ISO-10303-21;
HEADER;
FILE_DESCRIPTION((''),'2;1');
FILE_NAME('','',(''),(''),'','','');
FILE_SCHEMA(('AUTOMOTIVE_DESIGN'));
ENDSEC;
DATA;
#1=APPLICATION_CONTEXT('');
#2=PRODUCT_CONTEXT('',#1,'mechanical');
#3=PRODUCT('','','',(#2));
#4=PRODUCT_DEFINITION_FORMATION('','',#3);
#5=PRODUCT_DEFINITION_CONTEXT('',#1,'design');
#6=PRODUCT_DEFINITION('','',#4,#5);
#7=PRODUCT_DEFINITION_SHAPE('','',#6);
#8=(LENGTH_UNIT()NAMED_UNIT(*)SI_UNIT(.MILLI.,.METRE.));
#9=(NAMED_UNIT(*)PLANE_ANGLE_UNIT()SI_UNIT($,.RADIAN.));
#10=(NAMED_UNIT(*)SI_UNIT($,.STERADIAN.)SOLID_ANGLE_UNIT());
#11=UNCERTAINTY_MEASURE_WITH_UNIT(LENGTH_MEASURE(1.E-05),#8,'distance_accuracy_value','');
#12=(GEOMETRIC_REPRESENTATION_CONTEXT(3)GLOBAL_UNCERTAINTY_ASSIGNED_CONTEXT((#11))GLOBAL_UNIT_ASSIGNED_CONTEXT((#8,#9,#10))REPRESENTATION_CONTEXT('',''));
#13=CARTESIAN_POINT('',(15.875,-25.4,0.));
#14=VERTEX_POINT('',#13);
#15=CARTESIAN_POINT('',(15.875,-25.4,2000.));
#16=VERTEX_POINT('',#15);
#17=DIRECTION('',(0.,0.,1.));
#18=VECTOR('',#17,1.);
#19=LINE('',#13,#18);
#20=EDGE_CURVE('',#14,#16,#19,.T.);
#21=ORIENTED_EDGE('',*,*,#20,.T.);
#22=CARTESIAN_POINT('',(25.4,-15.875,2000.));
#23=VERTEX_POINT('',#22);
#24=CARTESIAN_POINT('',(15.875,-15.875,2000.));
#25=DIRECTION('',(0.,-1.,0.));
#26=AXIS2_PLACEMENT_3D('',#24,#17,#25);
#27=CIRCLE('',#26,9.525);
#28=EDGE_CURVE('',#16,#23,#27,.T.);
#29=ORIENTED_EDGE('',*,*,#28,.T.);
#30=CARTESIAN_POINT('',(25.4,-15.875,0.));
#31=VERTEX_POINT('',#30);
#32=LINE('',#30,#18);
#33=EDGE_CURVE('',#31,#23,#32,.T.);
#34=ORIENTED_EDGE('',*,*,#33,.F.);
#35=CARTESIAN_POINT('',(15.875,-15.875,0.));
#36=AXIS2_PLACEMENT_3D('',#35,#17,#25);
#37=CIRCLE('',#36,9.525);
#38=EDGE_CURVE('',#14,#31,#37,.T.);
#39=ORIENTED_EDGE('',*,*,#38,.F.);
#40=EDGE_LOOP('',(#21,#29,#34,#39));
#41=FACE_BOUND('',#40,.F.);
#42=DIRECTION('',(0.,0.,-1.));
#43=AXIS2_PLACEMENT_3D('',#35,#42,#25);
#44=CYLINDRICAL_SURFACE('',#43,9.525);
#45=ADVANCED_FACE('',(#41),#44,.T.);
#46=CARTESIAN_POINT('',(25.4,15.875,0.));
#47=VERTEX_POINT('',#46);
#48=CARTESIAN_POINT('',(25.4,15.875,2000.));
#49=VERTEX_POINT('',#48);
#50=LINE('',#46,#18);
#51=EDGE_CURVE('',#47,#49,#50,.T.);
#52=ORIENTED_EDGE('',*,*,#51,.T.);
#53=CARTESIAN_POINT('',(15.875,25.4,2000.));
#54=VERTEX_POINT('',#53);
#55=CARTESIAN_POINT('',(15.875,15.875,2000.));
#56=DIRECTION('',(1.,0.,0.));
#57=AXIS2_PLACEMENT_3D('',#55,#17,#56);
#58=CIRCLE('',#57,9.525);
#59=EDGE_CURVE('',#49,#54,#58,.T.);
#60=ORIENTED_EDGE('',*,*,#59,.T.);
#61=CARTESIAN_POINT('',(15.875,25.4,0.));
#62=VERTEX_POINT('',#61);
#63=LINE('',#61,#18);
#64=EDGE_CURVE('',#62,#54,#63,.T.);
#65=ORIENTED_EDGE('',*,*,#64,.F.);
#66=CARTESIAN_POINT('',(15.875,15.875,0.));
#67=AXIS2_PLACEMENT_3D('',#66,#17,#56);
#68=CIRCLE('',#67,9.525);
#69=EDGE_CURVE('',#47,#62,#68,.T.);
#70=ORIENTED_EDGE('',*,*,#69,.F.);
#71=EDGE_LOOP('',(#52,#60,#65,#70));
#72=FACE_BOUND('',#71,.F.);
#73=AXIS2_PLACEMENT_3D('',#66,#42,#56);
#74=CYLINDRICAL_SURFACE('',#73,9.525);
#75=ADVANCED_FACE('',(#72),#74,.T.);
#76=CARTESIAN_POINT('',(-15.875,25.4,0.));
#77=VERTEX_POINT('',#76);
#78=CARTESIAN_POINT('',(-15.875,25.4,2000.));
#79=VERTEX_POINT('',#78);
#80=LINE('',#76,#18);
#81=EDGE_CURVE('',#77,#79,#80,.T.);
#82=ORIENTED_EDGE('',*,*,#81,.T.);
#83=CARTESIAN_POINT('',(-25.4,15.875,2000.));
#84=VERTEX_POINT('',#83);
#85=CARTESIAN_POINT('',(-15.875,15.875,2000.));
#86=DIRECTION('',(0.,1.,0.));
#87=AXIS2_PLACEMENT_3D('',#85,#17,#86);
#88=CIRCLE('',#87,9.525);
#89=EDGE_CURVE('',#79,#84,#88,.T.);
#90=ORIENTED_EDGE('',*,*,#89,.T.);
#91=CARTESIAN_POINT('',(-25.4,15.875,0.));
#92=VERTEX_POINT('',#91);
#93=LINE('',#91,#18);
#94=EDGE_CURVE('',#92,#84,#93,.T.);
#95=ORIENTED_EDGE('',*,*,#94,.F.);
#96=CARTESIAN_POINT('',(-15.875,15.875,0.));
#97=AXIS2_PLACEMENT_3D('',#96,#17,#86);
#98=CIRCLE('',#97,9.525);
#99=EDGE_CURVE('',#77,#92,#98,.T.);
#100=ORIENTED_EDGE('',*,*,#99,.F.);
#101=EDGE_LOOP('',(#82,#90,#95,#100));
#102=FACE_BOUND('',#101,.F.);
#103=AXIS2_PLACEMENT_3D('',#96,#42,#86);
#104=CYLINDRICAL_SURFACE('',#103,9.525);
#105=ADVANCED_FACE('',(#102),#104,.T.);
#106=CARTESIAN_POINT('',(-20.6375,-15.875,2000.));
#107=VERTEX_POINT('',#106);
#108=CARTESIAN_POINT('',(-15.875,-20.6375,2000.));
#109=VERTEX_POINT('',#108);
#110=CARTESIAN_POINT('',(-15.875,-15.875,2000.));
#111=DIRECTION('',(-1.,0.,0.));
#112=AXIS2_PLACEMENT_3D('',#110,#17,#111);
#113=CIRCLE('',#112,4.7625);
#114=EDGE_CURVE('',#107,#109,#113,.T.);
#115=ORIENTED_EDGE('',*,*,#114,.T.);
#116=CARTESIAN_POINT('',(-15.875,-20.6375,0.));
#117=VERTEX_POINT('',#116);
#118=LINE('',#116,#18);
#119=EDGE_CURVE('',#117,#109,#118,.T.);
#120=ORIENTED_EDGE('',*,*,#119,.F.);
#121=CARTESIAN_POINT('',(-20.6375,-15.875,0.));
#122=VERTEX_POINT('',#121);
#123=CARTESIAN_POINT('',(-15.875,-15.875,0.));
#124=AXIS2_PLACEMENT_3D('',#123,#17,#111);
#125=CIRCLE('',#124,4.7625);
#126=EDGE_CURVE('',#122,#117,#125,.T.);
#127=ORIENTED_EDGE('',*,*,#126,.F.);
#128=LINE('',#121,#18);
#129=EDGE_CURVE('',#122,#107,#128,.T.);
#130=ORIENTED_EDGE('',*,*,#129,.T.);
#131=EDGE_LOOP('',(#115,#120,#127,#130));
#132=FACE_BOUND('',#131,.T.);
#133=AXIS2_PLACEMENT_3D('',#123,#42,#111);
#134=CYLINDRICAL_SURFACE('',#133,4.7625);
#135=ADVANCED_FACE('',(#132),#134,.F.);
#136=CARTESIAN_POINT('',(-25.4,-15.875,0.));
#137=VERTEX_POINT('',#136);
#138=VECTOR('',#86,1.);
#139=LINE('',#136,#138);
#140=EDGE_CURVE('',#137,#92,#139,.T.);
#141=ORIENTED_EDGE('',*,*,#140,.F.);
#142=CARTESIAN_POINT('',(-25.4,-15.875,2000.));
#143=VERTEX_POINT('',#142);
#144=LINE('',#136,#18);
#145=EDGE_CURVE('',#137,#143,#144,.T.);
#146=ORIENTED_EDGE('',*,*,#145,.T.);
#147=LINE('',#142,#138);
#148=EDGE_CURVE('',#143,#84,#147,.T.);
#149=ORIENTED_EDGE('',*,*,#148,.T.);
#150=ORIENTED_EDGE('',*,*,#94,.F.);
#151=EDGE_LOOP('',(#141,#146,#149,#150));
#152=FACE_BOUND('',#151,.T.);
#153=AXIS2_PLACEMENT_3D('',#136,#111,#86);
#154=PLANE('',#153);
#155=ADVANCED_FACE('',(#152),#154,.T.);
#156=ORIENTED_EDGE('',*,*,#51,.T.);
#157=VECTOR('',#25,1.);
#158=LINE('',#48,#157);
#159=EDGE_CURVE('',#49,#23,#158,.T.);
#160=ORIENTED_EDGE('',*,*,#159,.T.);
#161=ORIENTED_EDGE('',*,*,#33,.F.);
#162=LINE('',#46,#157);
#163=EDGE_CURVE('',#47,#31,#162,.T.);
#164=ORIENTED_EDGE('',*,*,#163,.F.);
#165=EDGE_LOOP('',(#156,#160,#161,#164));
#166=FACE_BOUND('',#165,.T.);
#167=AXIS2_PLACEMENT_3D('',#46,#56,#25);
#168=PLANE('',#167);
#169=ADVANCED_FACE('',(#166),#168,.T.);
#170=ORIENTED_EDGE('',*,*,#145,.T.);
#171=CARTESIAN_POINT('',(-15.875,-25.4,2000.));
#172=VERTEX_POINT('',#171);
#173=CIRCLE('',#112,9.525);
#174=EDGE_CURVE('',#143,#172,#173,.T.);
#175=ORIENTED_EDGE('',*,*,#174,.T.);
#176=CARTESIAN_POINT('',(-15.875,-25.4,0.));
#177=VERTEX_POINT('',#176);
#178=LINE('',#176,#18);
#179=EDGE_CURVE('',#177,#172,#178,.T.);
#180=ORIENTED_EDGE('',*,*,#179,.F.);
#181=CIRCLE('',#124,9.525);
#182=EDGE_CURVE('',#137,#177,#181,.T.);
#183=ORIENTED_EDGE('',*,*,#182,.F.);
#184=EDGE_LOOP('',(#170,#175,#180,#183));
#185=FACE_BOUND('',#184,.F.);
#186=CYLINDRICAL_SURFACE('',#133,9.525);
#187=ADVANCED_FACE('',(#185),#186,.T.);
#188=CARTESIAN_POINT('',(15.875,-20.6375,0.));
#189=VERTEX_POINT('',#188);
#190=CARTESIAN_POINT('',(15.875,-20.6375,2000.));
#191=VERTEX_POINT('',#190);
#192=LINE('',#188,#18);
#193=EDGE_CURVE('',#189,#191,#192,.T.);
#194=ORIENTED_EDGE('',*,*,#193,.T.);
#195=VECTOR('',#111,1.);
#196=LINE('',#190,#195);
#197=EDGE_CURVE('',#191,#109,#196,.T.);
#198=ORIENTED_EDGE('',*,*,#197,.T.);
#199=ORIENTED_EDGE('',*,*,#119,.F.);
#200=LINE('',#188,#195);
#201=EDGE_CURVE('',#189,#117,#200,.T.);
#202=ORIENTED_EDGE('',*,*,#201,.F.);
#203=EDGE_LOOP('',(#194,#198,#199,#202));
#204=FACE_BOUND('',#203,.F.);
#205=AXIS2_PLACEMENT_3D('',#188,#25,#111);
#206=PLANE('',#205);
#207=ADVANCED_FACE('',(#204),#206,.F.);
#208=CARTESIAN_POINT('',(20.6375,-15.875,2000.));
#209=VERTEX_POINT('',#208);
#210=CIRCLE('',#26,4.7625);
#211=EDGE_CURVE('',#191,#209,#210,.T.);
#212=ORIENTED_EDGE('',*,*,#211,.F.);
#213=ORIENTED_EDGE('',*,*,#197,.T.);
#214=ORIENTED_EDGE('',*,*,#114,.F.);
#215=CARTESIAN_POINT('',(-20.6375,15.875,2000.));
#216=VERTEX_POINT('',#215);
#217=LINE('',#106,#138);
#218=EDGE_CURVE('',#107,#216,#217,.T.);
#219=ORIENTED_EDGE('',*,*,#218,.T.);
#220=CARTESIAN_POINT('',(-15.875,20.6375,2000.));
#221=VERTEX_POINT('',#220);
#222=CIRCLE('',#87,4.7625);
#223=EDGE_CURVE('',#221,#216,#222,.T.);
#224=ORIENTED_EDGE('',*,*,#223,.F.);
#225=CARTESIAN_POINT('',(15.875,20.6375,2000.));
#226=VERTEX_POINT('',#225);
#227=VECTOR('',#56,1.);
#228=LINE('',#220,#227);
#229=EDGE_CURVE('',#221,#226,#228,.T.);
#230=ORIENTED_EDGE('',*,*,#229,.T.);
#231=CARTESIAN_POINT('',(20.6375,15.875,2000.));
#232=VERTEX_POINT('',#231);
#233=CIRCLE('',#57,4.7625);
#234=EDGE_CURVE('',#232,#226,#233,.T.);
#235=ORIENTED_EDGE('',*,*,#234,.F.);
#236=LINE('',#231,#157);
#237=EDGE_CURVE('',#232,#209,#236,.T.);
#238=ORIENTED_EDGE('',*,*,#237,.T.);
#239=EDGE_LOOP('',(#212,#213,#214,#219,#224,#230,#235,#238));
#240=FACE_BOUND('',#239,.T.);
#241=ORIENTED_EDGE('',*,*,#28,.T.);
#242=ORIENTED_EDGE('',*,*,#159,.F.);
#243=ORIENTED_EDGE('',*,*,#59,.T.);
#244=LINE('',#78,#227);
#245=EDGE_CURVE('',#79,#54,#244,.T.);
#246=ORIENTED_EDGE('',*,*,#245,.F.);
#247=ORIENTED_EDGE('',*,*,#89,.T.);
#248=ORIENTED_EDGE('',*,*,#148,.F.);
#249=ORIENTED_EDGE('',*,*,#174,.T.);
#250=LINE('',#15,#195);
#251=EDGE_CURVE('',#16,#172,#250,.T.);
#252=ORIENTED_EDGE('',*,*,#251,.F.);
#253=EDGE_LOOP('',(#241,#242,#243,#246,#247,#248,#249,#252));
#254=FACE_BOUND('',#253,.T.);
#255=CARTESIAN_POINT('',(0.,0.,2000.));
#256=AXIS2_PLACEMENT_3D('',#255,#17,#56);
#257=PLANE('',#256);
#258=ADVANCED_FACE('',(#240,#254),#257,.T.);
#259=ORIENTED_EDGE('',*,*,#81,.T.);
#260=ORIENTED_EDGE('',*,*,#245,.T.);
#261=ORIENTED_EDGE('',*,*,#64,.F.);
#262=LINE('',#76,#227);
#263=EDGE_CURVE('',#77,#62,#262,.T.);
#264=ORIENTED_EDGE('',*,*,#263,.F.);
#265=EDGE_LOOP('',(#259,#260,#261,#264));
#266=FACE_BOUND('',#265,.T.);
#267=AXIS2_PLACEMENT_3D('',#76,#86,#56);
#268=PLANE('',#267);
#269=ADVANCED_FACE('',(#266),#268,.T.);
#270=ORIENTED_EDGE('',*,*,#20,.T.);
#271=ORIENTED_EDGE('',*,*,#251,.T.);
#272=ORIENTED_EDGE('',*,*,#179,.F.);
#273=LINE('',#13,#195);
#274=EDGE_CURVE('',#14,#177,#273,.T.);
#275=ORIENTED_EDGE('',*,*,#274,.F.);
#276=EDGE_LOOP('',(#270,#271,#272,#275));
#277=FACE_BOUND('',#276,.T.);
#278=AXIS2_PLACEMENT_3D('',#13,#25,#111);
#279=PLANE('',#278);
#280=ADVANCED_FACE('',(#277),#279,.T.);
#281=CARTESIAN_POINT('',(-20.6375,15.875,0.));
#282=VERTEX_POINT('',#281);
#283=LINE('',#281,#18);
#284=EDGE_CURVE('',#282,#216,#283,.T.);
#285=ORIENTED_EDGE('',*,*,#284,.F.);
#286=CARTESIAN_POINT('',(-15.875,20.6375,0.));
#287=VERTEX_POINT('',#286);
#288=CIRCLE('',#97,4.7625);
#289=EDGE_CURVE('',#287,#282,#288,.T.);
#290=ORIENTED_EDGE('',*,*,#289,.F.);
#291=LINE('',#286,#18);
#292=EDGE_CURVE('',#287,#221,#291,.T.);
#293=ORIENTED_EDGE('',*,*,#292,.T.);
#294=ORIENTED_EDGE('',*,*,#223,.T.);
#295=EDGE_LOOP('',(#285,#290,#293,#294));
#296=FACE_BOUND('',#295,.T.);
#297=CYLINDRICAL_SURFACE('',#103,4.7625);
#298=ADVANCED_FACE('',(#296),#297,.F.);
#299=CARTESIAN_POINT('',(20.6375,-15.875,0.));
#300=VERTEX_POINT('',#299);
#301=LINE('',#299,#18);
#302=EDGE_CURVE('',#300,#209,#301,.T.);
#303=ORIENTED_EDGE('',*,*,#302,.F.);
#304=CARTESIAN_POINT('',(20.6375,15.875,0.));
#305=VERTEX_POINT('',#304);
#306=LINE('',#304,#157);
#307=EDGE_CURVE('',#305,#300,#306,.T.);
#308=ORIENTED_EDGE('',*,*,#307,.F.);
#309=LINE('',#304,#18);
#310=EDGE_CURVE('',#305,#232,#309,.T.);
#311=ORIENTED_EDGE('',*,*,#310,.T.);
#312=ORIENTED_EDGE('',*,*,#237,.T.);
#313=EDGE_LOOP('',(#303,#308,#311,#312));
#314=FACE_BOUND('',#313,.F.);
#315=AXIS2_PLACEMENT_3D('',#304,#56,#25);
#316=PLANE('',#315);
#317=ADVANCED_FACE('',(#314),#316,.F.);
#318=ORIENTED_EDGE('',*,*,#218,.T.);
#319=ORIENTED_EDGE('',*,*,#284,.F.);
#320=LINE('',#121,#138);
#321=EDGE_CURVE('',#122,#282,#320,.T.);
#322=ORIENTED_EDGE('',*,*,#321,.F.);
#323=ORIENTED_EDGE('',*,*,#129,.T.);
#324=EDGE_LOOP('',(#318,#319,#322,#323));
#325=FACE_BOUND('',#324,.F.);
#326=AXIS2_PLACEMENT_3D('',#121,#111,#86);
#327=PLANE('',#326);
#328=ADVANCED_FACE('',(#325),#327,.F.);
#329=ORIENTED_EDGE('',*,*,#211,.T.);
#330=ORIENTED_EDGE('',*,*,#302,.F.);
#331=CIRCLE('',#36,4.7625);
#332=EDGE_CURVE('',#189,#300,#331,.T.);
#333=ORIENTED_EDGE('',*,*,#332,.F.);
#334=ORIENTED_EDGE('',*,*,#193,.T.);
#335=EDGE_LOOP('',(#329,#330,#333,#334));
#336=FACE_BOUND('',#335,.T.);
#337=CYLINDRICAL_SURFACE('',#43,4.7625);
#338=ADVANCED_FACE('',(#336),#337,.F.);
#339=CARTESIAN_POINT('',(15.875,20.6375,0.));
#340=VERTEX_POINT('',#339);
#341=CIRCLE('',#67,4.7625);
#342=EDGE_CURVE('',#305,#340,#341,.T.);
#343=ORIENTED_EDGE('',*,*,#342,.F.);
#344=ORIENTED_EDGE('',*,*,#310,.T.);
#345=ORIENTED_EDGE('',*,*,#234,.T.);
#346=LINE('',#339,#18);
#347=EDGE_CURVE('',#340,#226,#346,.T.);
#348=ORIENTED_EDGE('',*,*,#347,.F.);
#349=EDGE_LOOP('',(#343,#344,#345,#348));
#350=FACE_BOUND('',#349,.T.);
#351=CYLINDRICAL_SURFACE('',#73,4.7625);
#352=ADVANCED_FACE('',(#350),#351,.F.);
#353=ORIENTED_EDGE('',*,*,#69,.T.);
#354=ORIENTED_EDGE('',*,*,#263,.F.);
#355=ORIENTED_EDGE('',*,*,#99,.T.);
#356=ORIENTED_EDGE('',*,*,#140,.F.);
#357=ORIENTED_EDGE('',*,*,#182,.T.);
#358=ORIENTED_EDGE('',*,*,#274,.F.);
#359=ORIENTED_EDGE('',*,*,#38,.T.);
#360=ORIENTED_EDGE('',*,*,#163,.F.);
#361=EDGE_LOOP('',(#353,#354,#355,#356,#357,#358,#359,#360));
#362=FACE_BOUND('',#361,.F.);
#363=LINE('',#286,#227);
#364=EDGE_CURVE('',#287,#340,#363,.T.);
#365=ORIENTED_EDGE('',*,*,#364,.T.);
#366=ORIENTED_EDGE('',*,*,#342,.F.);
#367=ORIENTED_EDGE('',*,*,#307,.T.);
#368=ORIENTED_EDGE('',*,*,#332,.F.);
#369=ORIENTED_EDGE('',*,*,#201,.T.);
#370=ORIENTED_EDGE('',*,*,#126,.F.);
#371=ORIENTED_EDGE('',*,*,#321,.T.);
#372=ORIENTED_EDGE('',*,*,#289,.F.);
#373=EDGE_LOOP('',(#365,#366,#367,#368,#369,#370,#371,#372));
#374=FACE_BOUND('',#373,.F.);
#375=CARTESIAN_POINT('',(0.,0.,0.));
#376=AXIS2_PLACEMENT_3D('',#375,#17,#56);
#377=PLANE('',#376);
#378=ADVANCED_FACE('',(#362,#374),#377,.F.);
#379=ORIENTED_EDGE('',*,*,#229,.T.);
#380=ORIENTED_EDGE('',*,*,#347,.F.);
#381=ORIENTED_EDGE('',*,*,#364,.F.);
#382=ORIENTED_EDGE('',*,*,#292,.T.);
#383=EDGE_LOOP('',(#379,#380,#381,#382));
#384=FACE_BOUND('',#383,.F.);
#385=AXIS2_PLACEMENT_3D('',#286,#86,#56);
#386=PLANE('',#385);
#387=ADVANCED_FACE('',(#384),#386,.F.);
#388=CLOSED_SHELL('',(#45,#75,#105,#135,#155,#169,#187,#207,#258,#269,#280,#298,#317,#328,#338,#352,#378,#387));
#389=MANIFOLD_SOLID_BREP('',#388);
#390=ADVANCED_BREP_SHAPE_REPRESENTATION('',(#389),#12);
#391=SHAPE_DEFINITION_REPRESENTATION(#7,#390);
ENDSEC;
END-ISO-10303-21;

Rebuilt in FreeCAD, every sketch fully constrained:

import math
import FreeCAD as App
import Part
import Sketcher
from FreeCAD import Vector
Q = App.Units.Quantity

doc = App.newDocument("Part")
body = doc.addObject("PartDesign::Body", "Body")

sketch1 = body.newObject("Sketcher::SketchObject", "Sketch")
sketch1.AttachmentSupport = (doc.getObject("XY_Plane"), [""])
sketch1.MapMode = "FlatFace"
sketch1.addGeometry([
    Part.LineSegment(Vector(-25.4, 15.875, 0), Vector(-25.4, -15.875, 0)),
    Part.ArcOfCircle(Part.Circle(Vector(-15.875, -15.875, 0), Vector(0, 0, 1), 9.525), math.radians(180), math.radians(270)),
    Part.LineSegment(Vector(-15.875, -25.4, 0), Vector(15.875, -25.4, 0)),
    Part.ArcOfCircle(Part.Circle(Vector(15.875, -15.875, 0), Vector(0, 0, 1), 9.525), math.radians(-90), math.radians(0)),
    Part.LineSegment(Vector(25.4, -15.875, 0), Vector(25.4, 15.875, 0)),
    Part.ArcOfCircle(Part.Circle(Vector(15.875, 15.875, 0), Vector(0, 0, 1), 9.525), math.radians(0), math.radians(90)),
    Part.LineSegment(Vector(15.875, 25.4, 0), Vector(-15.875, 25.4, 0)),
    Part.ArcOfCircle(Part.Circle(Vector(-15.875, 15.875, 0), Vector(0, 0, 1), 9.525), math.radians(90), math.radians(180)),
    Part.ArcOfCircle(Part.Circle(Vector(-15.875, 15.875, 0), Vector(0, 0, 1), 4.7625), math.radians(90), math.radians(180)),
    Part.LineSegment(Vector(-15.875, 20.6375, 0), Vector(15.875, 20.6375, 0)),
    Part.ArcOfCircle(Part.Circle(Vector(15.875, 15.875, 0), Vector(0, 0, 1), 4.7625), math.radians(0), math.radians(90)),
    Part.LineSegment(Vector(20.6375, 15.875, 0), Vector(20.6375, -15.875, 0)),
    Part.ArcOfCircle(Part.Circle(Vector(15.875, -15.875, 0), Vector(0, 0, 1), 4.7625), math.radians(-90), math.radians(0)),
    Part.LineSegment(Vector(15.875, -20.6375, 0), Vector(-15.875, -20.6375, 0)),
    Part.ArcOfCircle(Part.Circle(Vector(-15.875, -15.875, 0), Vector(0, 0, 1), 4.7625), math.radians(180), math.radians(270)),
    Part.LineSegment(Vector(-20.6375, -15.875, 0), Vector(-20.6375, 15.875, 0)),
], False)
sketch1.addConstraint([
    Sketcher.Constraint("Tangent", 0, 2, 1, 1),
    Sketcher.Constraint("Tangent", 1, 2, 2, 1),
    Sketcher.Constraint("Tangent", 2, 2, 3, 1),
    Sketcher.Constraint("Tangent", 3, 2, 4, 1),
    Sketcher.Constraint("Tangent", 4, 2, 5, 1),
    Sketcher.Constraint("Tangent", 5, 2, 6, 1),
    Sketcher.Constraint("Tangent", 6, 2, 7, 1),
    Sketcher.Constraint("Tangent", 7, 2, 0, 1),
    Sketcher.Constraint("Tangent", 8, 1, 9, 1),
    Sketcher.Constraint("Tangent", 9, 2, 10, 2),
    Sketcher.Constraint("Tangent", 10, 1, 11, 1),
    Sketcher.Constraint("Tangent", 11, 2, 12, 2),
    Sketcher.Constraint("Tangent", 12, 1, 13, 1),
    Sketcher.Constraint("Tangent", 13, 2, 14, 2),
    Sketcher.Constraint("Tangent", 14, 1, 15, 1),
    Sketcher.Constraint("Tangent", 15, 2, 8, 2),
    Sketcher.Constraint("Vertical", 0),
    Sketcher.Constraint("Horizontal", 2),
    Sketcher.Constraint("Vertical", 4),
    Sketcher.Constraint("Horizontal", 6),
    Sketcher.Constraint("Horizontal", 9),
    Sketcher.Constraint("Vertical", 11),
    Sketcher.Constraint("Horizontal", 13),
    Sketcher.Constraint("Vertical", 15),
    Sketcher.Constraint("Coincident", 8, 3, 7, 3),
    Sketcher.Constraint("Coincident", 10, 3, 5, 3),
    Sketcher.Constraint("Coincident", 12, 3, 3, 3),
    Sketcher.Constraint("Equal", 1, 3),
    Sketcher.Constraint("Equal", 3, 5),
    Sketcher.Constraint("Equal", 5, 7),
    Sketcher.Constraint("Equal", 12, 14),
    Sketcher.Constraint("Symmetric", 1, 3, 5, 3, -1, 1),
    Sketcher.Constraint("Equal", 13, 0),
    Sketcher.Constraint("DistanceX", 0, 2, -1, 1, Q("1 in")),
    Sketcher.Constraint("Radius", 1, Q("0.375 in")),
    Sketcher.Constraint("Radius", 8, Q("0.1875 in")),
])
pad1 = body.newObject("PartDesign::Pad", "Pad")
pad1.Profile = sketch1
pad1.Length = 2000

doc.recompute()
